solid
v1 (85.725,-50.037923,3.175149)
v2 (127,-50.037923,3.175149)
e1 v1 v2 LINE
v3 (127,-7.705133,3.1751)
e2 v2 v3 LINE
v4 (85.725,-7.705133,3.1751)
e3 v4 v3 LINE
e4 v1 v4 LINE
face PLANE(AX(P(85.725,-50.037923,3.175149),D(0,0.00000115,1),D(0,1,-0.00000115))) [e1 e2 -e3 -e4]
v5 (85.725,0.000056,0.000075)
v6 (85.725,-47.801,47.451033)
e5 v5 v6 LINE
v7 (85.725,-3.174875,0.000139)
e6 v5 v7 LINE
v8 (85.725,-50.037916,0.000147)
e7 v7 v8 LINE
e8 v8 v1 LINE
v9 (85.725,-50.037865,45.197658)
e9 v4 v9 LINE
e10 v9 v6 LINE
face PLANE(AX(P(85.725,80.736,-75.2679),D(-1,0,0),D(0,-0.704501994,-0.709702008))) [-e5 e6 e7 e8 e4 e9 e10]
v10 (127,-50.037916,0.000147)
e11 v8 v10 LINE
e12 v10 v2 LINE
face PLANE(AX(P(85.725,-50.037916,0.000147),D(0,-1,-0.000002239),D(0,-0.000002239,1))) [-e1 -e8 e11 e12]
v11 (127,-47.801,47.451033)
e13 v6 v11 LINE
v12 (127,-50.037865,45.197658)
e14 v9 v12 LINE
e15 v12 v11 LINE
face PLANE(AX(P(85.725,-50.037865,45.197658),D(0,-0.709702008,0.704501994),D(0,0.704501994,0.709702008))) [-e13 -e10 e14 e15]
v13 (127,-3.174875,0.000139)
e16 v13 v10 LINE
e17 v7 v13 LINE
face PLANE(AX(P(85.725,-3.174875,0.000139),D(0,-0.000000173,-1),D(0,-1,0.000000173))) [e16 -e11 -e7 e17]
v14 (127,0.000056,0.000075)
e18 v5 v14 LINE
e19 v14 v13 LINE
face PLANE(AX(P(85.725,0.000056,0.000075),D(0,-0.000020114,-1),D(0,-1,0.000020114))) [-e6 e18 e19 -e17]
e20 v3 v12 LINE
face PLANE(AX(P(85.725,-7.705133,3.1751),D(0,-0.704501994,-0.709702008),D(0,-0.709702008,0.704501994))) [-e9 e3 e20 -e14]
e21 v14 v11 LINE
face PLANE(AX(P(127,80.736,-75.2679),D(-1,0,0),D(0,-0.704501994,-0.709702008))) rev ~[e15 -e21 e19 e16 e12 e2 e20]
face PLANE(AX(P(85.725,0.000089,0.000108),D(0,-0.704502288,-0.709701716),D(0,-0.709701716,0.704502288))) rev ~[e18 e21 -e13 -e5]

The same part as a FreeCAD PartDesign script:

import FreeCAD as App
import Part
import Sketcher

V = App.Vector
Q = App.Units.Quantity


def add_polygon(sketch, points):
    """Adds a closed chain of lines whose ends are joined by coincident constraints."""
    first, n = sketch.GeometryCount, len(points)
    for a, b in zip(points, points[1:] + points[:1]):
        sketch.addGeometry(Part.LineSegment(App.Vector(*a, 0), App.Vector(*b, 0)), False)
    for i in range(n):
        sketch.addConstraint(Sketcher.Constraint("Coincident", first + i, 2, first + (i + 1) % n, 1))

doc = App.newDocument("Part")
body = doc.addObject("PartDesign::Body", "Body")

sketch1 = body.newObject("Sketcher::SketchObject", "Sketch")
sketch1.AttachmentSupport = (doc.getObject("YZ_Plane"), [""])
sketch1.MapMode = "FlatFace"
sketch1.AttachmentOffset = App.Placement(V(0, 0, 3.375 * 25.4), App.Rotation())
add_polygon(sketch1, [(-47.8, 47.5), (0, 0), (-3.2, 0), (-50, 0), (-50, 3.2), (-7.7, 3.2), (-50, 45.2)])
sketch1.addConstraint([
    Sketcher.Constraint("Horizontal", 1),
    Sketcher.Constraint("Horizontal", 2),
    Sketcher.Constraint("Vertical", 3),
    Sketcher.Constraint("Horizontal", 4),
    Sketcher.Constraint("Coincident", 0, 2, -1, 1),
    Sketcher.Constraint("Parallel", 0, 5),
    Sketcher.Constraint("Perpendicular", 5, 6),
    Sketcher.Constraint("Vertical", 3, 2, 5, 2),
    Sketcher.Constraint("Equal", 1, 3),
    Sketcher.Constraint("DistanceX", 1, 2, 1, 1, Q("0.125 in")),
    Sketcher.Constraint("Distance", 6, Q("0.125 in")),
    Sketcher.Constraint("DistanceX", 2, 2, 2, 1, Q("1.845 in")),
    Sketcher.Constraint("Angle", 0, Q("-44.7893 deg")),
])
pad1 = body.newObject("PartDesign::Pad", "Pad")
pad1.Profile = sketch1
pad1.Length = Q("1.625 in")

doc.recompute()
